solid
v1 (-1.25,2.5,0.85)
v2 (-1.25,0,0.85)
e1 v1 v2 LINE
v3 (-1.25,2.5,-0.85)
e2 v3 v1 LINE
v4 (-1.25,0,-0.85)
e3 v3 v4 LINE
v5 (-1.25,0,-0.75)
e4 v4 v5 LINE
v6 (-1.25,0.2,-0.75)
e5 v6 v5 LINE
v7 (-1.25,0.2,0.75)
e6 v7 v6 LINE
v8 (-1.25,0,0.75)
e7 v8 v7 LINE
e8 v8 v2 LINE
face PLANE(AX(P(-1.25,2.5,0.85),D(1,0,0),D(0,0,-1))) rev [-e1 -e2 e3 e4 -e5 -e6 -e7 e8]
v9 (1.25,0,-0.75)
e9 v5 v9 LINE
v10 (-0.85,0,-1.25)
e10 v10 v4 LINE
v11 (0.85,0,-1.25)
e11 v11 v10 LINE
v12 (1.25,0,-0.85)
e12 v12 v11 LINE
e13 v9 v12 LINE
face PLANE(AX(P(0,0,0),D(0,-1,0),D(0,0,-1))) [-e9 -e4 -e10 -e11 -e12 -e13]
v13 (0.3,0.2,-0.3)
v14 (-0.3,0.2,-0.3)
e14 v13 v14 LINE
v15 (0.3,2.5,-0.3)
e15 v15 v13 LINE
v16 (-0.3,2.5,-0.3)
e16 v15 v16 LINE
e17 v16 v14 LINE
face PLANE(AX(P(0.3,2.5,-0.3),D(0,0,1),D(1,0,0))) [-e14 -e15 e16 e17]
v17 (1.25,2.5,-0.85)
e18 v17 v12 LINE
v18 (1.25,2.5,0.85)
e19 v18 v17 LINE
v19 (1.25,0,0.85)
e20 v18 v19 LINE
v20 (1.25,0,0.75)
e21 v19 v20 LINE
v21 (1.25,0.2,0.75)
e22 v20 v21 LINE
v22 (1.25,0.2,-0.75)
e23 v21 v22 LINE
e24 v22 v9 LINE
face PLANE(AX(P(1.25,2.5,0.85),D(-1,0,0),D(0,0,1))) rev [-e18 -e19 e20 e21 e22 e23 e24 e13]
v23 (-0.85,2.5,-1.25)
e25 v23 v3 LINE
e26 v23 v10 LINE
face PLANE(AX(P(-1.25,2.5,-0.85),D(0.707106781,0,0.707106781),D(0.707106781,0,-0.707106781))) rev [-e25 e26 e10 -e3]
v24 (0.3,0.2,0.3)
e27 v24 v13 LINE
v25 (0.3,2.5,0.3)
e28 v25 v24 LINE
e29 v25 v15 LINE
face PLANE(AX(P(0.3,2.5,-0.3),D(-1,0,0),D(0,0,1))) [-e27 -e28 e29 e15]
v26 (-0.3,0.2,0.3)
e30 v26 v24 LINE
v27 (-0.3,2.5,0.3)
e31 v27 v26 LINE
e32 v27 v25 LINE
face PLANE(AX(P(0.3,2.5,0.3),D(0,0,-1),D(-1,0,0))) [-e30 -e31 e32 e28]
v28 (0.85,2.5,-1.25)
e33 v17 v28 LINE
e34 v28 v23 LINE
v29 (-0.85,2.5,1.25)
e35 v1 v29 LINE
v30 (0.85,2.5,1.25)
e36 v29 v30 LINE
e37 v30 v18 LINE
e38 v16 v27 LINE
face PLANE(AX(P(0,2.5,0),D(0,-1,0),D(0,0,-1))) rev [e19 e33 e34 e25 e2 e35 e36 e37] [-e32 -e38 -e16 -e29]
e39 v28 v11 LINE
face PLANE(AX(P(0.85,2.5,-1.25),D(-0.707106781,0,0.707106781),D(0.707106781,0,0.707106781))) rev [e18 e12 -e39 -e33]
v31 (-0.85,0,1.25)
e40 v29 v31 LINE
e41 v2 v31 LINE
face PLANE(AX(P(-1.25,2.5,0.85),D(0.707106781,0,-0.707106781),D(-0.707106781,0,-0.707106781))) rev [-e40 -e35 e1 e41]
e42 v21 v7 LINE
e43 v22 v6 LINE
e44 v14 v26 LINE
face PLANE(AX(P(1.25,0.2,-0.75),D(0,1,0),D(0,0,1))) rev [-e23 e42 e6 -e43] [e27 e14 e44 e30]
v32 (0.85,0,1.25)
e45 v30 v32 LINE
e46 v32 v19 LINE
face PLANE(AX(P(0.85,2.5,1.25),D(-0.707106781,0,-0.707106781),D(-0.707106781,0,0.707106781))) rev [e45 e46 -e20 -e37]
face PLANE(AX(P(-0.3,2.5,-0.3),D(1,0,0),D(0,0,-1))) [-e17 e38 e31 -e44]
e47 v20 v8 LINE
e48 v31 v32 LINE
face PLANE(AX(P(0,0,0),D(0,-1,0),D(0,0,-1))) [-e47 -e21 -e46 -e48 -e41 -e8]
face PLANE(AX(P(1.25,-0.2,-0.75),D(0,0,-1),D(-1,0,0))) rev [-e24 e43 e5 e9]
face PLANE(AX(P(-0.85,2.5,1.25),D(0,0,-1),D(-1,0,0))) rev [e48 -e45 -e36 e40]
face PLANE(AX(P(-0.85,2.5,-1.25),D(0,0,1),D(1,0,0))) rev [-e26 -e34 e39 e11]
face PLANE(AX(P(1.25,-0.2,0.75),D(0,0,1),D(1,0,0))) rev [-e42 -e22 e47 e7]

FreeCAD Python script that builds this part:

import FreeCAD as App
import Part
import Sketcher
Q = App.Units.Quantity


def add_polygon(sketch, points):
    """Adds a closed chain of lines whose ends are joined by coincident constraints."""
    first, n = sketch.GeometryCount, len(points)
    for a, b in zip(points, points[1:] + points[:1]):
        sketch.addGeometry(Part.LineSegment(App.Vector(*a, 0), App.Vector(*b, 0)), False)
    for i in range(n):
        sketch.addConstraint(Sketcher.Constraint("Coincident", first + i, 2, first + (i + 1) % n, 1))

doc = App.newDocument("Part")
body = doc.addObject("PartDesign::Body", "Body")

# Sketch on XZ plane
sketch1 = body.newObject("Sketcher::SketchObject", "Sketch")
sketch1.AttachmentSupport = (doc.getObject("XZ_Plane"), [""])
sketch1.MapMode = "FlatFace"
add_polygon(sketch1, [(-0.8, -1.2), (-1.2, -0.8), (-1.2, 0.8), (-0.8, 1.2), (0.8, 1.2), (1.2, 0.8), (1.2, -0.8), (0.8, -1.2)])  # lines 0-7
add_polygon(sketch1, [(-0.3, 0.3), (-0.3, -0.3), (0.3, -0.3), (0.3, 0.3)])  # lines 8-11
sketch1.addConstraint(Sketcher.Constraint("Vertical", 1))
sketch1.addConstraint(Sketcher.Constraint("Horizontal", 3))
sketch1.addConstraint(Sketcher.Constraint("Vertical", 5))
sketch1.addConstraint(Sketcher.Constraint("Horizontal", 7))
sketch1.addConstraint(Sketcher.Constraint("Vertical", 8))
sketch1.addConstraint(Sketcher.Constraint("Horizontal", 9))
sketch1.addConstraint(Sketcher.Constraint("Vertical", 10))
sketch1.addConstraint(Sketcher.Constraint("Horizontal", 11))
sketch1.addConstraint(Sketcher.Constraint("Symmetric", 0, 2, 4, 2, -1, 1))
sketch1.addConstraint(Sketcher.Constraint("Symmetric", 2, 2, 6, 2, -1, 1))
sketch1.addConstraint(Sketcher.Constraint("Symmetric", 8, 2, 10, 2, -1, 1))
sketch1.addConstraint(Sketcher.Constraint("Perpendicular", 0, 2))
sketch1.addConstraint(Sketcher.Constraint("Perpendicular", 2, 4))
sketch1.addConstraint(Sketcher.Constraint("Perpendicular", 4, 6))
sketch1.addConstraint(Sketcher.Constraint("Horizontal", 1, 2, 4, 2))
sketch1.addConstraint(Sketcher.Constraint("Vertical", 3, 2, 6, 2))
sketch1.addConstraint(Sketcher.Constraint("Equal", 7, 1))
sketch1.addConstraint(Sketcher.Constraint("Equal", 11, 8))
sketch1.addConstraint(Sketcher.Constraint("DistanceX", 3, 1, 3, 2, Q("1.7 mm")))
sketch1.addConstraint(Sketcher.Constraint("DistanceX", 9, 1, 9, 2, Q("0.6 mm")))
sketch1.addConstraint(Sketcher.Constraint("DistanceX", 1, 2, 2, 2, Q("0.4 mm")))
pad1 = body.newObject("PartDesign::Pad", "Pad")
pad1.Profile = sketch1
pad1.Length = 2.5
pad1.Reversed = True

# Sketch on YZ plane
sketch2 = body.newObject("Sketcher::SketchObject", "Sketch001")
sketch2.AttachmentSupport = (doc.getObject("YZ_Plane"), [""])
sketch2.MapMode = "FlatFace"
sketch2.AttachmentOffset = App.Placement(App.Vector(0, 0, -1.25), App.Rotation())
add_polygon(sketch2, [(0.2, -0.75), (-0.2, -0.75), (-0.2, 0.75), (0.2, 0.75)])  # lines 0-3
sketch2.addConstraint(Sketcher.Constraint("Horizontal", 0))
sketch2.addConstraint(Sketcher.Constraint("Vertical", 1))
sketch2.addConstraint(Sketcher.Constraint("Horizontal", 2))
sketch2.addConstraint(Sketcher.Constraint("Vertical", 3))
sketch2.addConstraint(Sketcher.Constraint("Symmetric", 0, 2, 2, 2, -1, 1))
sketch2.addConstraint(Sketcher.Constraint("DistanceX", 0, 2, 0, 1, Q("0.4 mm")))
sketch2.addConstraint(Sketcher.Constraint("DistanceY", 1, 1, 1, 2, Q("1.5 mm")))
pocket1 = body.newObject("PartDesign::Pocket", "Pocket")
pocket1.Profile = sketch2
pocket1.Type = "ThroughAll"
pocket1.Reversed = True

doc.recompute()
